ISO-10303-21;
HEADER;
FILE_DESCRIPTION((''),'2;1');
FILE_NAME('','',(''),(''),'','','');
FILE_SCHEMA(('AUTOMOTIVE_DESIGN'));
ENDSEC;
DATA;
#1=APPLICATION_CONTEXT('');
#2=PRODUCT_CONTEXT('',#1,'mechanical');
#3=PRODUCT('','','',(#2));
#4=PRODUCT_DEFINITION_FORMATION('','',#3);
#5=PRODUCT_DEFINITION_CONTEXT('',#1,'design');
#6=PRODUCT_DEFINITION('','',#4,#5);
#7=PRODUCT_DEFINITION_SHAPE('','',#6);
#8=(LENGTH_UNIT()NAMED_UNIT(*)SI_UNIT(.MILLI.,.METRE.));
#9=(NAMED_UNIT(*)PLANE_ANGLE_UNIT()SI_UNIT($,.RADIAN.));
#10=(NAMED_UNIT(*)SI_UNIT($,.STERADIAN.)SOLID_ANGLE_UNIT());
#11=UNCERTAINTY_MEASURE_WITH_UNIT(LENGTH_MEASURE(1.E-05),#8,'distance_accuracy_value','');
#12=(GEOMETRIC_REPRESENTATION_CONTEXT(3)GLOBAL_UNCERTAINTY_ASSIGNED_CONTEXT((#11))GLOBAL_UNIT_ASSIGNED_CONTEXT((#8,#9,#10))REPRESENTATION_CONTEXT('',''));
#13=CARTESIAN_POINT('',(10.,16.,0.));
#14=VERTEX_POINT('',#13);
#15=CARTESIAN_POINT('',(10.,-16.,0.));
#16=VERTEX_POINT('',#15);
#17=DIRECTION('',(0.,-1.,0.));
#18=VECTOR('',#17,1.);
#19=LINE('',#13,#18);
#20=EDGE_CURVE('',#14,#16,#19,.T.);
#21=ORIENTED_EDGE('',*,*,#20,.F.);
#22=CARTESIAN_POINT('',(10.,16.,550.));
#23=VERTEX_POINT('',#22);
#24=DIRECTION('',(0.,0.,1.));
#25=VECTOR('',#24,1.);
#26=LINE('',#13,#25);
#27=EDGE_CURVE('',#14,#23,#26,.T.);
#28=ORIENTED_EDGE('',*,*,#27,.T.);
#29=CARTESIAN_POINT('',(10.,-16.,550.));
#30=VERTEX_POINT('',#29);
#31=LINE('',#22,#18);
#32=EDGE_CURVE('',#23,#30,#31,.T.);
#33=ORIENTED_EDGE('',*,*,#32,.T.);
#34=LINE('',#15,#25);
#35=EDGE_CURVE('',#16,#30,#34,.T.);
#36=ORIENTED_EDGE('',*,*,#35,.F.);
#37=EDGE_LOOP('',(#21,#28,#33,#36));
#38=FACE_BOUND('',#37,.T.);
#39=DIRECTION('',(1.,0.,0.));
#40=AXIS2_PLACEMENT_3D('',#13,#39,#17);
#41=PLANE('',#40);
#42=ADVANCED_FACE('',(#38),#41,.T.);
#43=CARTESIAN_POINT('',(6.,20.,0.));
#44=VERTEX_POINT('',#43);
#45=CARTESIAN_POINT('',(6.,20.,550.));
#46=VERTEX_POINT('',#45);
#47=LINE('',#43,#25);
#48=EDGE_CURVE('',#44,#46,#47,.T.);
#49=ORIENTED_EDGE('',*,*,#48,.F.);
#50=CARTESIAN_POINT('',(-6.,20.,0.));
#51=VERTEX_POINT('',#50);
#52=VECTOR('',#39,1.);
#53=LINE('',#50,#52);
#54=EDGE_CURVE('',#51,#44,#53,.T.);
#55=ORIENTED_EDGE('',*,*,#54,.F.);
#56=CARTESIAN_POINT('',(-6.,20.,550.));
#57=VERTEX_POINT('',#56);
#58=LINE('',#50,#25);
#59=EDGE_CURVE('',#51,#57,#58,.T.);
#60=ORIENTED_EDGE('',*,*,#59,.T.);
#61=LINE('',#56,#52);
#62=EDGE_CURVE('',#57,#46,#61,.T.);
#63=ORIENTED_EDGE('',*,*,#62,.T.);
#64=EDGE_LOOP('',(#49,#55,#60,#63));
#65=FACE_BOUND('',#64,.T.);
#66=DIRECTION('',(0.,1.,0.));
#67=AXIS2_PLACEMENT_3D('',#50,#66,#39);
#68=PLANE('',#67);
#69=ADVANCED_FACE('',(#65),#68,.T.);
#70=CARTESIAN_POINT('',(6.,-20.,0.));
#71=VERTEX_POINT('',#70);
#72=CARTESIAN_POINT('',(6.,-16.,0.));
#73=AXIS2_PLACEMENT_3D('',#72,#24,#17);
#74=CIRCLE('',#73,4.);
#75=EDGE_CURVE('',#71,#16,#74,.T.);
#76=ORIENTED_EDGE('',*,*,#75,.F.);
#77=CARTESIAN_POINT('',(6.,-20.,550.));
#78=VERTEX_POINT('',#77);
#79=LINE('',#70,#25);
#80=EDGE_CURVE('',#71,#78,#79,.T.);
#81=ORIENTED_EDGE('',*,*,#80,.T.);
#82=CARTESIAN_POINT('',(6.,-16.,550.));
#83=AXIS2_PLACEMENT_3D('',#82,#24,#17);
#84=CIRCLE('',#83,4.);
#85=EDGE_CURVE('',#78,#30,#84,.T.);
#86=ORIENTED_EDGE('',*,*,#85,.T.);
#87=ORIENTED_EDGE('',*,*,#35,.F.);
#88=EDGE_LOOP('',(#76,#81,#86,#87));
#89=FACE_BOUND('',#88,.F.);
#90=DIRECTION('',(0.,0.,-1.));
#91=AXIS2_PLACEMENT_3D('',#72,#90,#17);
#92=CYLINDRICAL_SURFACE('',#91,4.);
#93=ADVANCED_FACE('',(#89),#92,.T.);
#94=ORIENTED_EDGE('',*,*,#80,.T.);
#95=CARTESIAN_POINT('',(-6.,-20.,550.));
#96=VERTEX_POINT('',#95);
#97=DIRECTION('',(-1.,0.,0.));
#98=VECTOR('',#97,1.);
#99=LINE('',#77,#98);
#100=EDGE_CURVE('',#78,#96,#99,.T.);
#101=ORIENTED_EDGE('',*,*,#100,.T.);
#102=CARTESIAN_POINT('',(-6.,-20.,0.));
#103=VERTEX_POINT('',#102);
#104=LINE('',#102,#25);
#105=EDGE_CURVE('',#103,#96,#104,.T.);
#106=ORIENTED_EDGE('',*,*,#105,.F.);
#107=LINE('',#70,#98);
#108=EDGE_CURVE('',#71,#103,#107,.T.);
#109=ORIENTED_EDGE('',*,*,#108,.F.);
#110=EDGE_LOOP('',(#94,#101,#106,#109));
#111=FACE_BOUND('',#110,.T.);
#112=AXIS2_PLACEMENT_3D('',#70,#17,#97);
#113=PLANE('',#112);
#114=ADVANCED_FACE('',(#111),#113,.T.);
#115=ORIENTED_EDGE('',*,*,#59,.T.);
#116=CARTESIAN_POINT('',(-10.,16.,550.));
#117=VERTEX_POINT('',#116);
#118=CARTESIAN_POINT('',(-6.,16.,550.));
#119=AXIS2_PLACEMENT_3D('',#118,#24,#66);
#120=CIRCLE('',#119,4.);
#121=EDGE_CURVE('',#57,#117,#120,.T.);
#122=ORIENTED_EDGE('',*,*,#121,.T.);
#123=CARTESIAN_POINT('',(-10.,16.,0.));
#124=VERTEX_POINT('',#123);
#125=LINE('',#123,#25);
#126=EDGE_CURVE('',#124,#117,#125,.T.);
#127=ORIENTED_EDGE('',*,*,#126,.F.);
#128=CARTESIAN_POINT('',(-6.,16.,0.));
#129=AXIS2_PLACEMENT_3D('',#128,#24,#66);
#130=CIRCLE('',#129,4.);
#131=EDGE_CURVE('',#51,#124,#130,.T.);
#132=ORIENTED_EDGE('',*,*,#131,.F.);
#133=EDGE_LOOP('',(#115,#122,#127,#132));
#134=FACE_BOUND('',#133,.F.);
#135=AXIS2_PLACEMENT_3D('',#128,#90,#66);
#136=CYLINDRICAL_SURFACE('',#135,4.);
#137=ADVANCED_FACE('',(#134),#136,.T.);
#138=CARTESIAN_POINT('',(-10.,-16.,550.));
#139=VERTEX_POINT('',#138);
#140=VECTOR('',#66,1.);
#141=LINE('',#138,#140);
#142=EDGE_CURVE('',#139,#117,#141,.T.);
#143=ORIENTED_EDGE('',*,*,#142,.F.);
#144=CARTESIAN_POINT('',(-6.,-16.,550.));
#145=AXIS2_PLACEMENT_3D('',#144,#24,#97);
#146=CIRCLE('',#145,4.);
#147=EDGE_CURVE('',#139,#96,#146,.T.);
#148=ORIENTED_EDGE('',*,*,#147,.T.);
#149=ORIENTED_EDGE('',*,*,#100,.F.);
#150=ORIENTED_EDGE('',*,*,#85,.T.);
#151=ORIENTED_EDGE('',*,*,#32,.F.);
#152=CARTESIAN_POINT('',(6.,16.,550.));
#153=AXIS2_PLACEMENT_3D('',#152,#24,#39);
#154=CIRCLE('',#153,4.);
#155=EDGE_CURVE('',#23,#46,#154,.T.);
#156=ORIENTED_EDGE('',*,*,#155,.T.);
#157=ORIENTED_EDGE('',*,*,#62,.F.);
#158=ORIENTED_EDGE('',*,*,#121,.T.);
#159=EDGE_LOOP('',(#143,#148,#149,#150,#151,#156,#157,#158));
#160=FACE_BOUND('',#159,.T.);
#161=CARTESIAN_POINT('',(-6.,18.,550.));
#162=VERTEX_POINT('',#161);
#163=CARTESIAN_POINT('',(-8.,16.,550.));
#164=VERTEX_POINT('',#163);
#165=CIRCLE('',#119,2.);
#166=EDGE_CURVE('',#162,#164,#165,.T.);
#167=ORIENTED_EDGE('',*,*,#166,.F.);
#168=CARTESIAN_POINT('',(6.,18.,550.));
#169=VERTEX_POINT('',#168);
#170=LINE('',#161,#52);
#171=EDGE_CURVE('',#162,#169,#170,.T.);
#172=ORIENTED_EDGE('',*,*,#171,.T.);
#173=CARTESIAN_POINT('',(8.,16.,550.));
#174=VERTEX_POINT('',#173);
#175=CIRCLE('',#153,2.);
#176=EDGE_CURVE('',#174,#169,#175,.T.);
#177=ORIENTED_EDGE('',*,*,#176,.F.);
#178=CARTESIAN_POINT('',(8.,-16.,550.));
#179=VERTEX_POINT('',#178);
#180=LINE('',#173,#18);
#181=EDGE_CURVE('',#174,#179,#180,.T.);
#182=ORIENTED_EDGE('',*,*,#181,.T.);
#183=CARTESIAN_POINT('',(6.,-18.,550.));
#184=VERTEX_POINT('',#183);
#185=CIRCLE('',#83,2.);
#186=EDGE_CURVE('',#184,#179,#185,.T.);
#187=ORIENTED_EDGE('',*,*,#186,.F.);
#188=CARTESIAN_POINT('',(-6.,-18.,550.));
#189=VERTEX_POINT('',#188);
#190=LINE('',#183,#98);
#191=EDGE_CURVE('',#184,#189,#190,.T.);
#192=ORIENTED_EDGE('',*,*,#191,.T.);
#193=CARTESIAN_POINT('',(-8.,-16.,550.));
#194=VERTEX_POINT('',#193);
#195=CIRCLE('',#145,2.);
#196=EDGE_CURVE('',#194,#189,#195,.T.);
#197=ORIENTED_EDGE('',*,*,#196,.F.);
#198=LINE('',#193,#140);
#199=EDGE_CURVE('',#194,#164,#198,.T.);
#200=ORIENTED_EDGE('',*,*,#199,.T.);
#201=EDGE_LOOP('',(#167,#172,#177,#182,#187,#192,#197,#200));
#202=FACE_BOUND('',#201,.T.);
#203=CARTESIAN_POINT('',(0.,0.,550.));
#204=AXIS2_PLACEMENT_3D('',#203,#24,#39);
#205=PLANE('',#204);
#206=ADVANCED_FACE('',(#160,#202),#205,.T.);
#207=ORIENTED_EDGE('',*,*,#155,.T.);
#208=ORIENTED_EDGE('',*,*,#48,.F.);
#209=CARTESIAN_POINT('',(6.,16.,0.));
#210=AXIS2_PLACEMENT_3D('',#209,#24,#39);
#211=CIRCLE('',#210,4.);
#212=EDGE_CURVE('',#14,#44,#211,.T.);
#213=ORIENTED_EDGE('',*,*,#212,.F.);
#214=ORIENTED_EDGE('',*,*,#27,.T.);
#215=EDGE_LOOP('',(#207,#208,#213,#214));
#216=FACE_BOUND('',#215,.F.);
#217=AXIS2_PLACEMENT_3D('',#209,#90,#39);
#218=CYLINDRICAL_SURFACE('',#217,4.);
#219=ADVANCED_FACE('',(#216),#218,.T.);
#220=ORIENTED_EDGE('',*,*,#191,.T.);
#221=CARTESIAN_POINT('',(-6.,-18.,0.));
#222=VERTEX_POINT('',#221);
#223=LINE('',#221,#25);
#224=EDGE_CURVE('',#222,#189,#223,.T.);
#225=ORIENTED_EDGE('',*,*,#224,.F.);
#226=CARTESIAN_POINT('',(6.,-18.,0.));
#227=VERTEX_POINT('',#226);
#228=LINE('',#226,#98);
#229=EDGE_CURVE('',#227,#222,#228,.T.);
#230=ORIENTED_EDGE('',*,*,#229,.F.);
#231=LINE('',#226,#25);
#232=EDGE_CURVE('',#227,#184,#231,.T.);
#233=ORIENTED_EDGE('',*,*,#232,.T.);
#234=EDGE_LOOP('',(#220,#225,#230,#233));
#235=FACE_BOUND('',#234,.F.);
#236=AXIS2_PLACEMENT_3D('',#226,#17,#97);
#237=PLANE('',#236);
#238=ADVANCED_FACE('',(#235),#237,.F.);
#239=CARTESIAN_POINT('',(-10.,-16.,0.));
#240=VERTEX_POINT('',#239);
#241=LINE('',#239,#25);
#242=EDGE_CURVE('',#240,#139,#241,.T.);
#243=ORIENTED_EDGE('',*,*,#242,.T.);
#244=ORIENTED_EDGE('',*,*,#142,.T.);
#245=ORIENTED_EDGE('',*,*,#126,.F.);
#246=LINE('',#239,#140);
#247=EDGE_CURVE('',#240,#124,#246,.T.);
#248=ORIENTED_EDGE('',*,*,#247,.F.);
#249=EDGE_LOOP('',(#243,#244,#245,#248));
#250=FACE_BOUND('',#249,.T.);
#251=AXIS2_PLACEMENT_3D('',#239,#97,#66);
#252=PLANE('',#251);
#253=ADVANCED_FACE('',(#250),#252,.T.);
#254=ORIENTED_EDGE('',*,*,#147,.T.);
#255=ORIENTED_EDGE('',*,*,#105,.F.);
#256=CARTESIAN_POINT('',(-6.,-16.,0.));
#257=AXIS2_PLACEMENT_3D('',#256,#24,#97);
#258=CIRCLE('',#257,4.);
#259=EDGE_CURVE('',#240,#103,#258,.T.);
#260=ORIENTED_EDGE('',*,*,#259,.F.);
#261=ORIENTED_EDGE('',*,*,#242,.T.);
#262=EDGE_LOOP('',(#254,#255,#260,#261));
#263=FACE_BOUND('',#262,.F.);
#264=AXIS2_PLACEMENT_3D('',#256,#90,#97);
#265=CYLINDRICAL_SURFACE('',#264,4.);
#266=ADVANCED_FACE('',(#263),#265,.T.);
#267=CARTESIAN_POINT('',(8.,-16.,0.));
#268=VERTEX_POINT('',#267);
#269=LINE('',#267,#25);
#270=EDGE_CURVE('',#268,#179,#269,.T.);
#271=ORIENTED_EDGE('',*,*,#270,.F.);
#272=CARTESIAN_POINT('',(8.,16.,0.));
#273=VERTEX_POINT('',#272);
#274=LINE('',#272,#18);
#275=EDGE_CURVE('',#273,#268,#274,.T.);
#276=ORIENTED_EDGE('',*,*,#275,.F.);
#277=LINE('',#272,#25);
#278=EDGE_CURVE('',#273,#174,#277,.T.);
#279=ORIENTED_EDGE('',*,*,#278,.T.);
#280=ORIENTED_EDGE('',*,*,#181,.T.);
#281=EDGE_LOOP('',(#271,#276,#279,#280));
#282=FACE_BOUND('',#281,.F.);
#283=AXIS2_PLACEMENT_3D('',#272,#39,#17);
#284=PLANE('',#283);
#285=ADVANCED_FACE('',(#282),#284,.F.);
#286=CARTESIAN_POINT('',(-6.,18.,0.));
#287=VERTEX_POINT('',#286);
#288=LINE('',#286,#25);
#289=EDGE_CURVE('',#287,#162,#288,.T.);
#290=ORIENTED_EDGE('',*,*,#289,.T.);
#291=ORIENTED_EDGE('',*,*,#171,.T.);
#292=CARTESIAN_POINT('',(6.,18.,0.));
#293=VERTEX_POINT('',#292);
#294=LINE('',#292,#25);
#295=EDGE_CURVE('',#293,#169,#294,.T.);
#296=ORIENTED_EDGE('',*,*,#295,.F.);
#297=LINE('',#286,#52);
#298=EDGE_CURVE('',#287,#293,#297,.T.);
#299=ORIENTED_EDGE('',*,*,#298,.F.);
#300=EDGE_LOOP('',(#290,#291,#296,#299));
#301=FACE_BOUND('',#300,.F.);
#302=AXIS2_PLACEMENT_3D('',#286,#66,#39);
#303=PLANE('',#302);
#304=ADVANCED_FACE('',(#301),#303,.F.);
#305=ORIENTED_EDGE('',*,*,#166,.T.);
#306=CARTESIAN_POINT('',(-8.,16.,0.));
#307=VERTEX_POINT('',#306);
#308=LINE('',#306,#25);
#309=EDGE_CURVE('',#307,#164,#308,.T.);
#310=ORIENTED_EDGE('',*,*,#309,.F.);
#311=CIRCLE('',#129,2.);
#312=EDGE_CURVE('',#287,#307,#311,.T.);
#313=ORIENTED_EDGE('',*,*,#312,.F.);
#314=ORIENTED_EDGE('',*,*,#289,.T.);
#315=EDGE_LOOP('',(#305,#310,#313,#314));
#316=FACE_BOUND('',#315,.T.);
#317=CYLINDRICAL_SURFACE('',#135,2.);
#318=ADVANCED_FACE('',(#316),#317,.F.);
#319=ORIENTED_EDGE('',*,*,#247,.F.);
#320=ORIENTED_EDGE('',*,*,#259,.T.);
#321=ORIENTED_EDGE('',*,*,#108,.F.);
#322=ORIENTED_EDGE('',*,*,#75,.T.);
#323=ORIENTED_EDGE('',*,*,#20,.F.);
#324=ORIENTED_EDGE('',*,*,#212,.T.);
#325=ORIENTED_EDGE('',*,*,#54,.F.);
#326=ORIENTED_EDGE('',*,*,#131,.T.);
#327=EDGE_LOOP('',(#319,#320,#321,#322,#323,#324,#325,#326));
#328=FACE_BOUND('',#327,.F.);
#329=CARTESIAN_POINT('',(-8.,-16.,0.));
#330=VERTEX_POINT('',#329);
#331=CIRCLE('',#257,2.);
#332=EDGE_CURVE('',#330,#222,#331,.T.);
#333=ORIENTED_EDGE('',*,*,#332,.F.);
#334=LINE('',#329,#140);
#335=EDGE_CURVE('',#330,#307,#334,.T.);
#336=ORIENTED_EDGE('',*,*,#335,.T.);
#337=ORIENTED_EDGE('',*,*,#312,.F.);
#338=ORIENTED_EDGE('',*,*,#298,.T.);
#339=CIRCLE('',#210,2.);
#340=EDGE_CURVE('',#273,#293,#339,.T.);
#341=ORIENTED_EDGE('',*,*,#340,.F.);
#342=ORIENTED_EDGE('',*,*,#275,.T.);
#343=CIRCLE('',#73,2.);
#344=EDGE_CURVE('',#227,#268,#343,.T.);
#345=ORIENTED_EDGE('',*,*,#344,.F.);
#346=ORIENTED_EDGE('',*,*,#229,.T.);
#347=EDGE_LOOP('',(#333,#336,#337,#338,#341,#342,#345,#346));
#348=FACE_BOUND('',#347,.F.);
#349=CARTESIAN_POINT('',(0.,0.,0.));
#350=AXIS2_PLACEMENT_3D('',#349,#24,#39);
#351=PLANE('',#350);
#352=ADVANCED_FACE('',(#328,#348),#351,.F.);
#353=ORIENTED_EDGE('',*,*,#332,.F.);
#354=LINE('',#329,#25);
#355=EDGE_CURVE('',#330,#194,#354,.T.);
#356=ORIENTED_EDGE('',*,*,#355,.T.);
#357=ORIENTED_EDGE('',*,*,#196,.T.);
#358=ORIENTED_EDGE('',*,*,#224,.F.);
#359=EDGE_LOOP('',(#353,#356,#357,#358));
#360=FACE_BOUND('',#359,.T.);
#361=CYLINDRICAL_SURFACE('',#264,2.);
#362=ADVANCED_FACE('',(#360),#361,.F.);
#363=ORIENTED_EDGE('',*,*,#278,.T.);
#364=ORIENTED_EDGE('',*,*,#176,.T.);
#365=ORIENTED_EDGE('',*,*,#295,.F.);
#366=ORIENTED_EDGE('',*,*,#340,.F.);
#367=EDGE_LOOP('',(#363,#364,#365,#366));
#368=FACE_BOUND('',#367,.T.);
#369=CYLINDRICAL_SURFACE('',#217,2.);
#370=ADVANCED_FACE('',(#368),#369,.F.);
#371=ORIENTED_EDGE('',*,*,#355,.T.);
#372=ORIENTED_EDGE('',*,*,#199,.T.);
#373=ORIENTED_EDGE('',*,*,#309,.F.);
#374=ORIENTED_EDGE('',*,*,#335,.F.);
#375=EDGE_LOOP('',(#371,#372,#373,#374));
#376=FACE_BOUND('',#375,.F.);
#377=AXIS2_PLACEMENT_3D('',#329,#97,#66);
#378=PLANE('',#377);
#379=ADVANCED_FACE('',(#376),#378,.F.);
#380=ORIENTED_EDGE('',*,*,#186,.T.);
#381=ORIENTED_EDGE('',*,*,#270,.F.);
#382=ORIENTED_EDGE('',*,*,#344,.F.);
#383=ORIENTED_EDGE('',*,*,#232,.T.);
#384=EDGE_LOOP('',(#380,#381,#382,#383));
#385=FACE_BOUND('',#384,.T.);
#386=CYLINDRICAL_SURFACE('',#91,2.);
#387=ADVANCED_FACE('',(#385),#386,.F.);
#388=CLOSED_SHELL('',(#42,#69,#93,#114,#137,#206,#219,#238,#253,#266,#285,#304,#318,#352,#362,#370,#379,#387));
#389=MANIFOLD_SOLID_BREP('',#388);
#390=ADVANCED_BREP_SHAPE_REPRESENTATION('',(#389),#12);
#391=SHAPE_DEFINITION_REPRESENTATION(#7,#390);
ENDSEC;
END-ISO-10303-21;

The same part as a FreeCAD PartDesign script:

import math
import FreeCAD as App
import Part
import Sketcher
Q = App.Units.Quantity

doc = App.newDocument("Part")
body = doc.addObject("PartDesign::Body", "Body")

sketch1 = doc.addObject("Sketcher::SketchObject", "Sketch")
body.addObject(sketch1)
sketch1.AttachmentSupport = (doc.XY_Plane, [""])
sketch1.MapMode = "FlatFace"
sketch1.addGeometry(Part.LineSegment(App.Vector(-10, 16, 0), App.Vector(-10, -16, 0)), False)
sketch1.addGeometry(Part.ArcOfCircle(Part.Circle(App.Vector(-6, -16, 0), App.Vector(0, 0, 1), 4), math.radians(180), math.radians(270)), False)
sketch1.addGeometry(Part.LineSegment(App.Vector(-6, -20, 0), App.Vector(6, -20, 0)), False)
sketch1.addGeometry(Part.ArcOfCircle(Part.Circle(App.Vector(6, -16, 0), App.Vector(0, 0, 1), 4), math.radians(-90), math.radians(0)), False)
sketch1.addGeometry(Part.LineSegment(App.Vector(10, -16, 0), App.Vector(10, 16, 0)), False)
sketch1.addGeometry(Part.ArcOfCircle(Part.Circle(App.Vector(6, 16, 0), App.Vector(0, 0, 1), 4), math.radians(0), math.radians(90)), False)
sketch1.addGeometry(Part.LineSegment(App.Vector(6, 20, 0), App.Vector(-6, 20, 0)), False)
sketch1.addGeometry(Part.ArcOfCircle(Part.Circle(App.Vector(-6, 16, 0), App.Vector(0, 0, 1), 4), math.radians(90), math.radians(180)), False)
sketch1.addGeometry(Part.ArcOfCircle(Part.Circle(App.Vector(-6, 16, 0), App.Vector(0, 0, 1), 2), math.radians(90), math.radians(180)), False)
sketch1.addGeometry(Part.LineSegment(App.Vector(-6, 18, 0), App.Vector(6, 18, 0)), False)
sketch1.addGeometry(Part.ArcOfCircle(Part.Circle(App.Vector(6, 16, 0), App.Vector(0, 0, 1), 2), math.radians(0), math.radians(90)), False)
sketch1.addGeometry(Part.LineSegment(App.Vector(8, 16, 0), App.Vector(8, -16, 0)), False)
sketch1.addGeometry(Part.ArcOfCircle(Part.Circle(App.Vector(6, -16, 0), App.Vector(0, 0, 1), 2), math.radians(-90), math.radians(0)), False)
sketch1.addGeometry(Part.LineSegment(App.Vector(6, -18, 0), App.Vector(-6, -18, 0)), False)
sketch1.addGeometry(Part.ArcOfCircle(Part.Circle(App.Vector(-6, -16, 0), App.Vector(0, 0, 1), 2), math.radians(180), math.radians(270)), False)
sketch1.addGeometry(Part.LineSegment(App.Vector(-8, -16, 0), App.Vector(-8, 16, 0)), False)
sketch1.addConstraint(Sketcher.Constraint("Tangent", 0, 2, 1, 1))
sketch1.addConstraint(Sketcher.Constraint("Tangent", 1, 2, 2, 1))
sketch1.addConstraint(Sketcher.Constraint("Tangent", 2, 2, 3, 1))
sketch1.addConstraint(Sketcher.Constraint("Tangent", 3, 2, 4, 1))
sketch1.addConstraint(Sketcher.Constraint("Tangent", 4, 2, 5, 1))
sketch1.addConstraint(Sketcher.Constraint("Tangent", 5, 2, 6, 1))
sketch1.addConstraint(Sketcher.Constraint("Tangent", 6, 2, 7, 1))
sketch1.addConstraint(Sketcher.Constraint("Tangent", 7, 2, 0, 1))
sketch1.addConstraint(Sketcher.Constraint("Tangent", 8, 1, 9, 1))
sketch1.addConstraint(Sketcher.Constraint("Tangent", 9, 2, 10, 2))
sketch1.addConstraint(Sketcher.Constraint("Tangent", 10, 1, 11, 1))
sketch1.addConstraint(Sketcher.Constraint("Tangent", 11, 2, 12, 2))
sketch1.addConstraint(Sketcher.Constraint("Tangent", 12, 1, 13, 1))
sketch1.addConstraint(Sketcher.Constraint("Tangent", 13, 2, 14, 2))
sketch1.addConstraint(Sketcher.Constraint("Tangent", 14, 1, 15, 1))
sketch1.addConstraint(Sketcher.Constraint("Tangent", 15, 2, 8, 2))
sketch1.addConstraint(Sketcher.Constraint("Vertical", 0))
sketch1.addConstraint(Sketcher.Constraint("Horizontal", 2))
sketch1.addConstraint(Sketcher.Constraint("Vertical", 4))
sketch1.addConstraint(Sketcher.Constraint("Horizontal", 6))
sketch1.addConstraint(Sketcher.Constraint("Horizontal", 9))
sketch1.addConstraint(Sketcher.Constraint("Vertical", 11))
sketch1.addConstraint(Sketcher.Constraint("Horizontal", 13))
sketch1.addConstraint(Sketcher.Constraint("Vertical", 15))
sketch1.addConstraint(Sketcher.Constraint("Coincident", 8, 3, 7, 3))
sketch1.addConstraint(Sketcher.Constraint("Coincident", 10, 3, 5, 3))
sketch1.addConstraint(Sketcher.Constraint("Coincident", 12, 3, 3, 3))
sketch1.addConstraint(Sketcher.Constraint("Equal", 1, 3))
sketch1.addConstraint(Sketcher.Constraint("Equal", 3, 5))
sketch1.addConstraint(Sketcher.Constraint("Equal", 5, 7))
sketch1.addConstraint(Sketcher.Constraint("Equal", 12, 14))
sketch1.addConstraint(Sketcher.Constraint("Symmetric", 1, 3, 5, 3, -1, 1))
sketch1.addConstraint(Sketcher.Constraint("Radius", 1, Q("4 mm")))
sketch1.addConstraint(Sketcher.Constraint("Radius", 8, Q("2 mm")))
sketch1.addConstraint(Sketcher.Constraint("DistanceX", 0, 2, -1, 1, Q("10 mm")))
sketch1.addConstraint(Sketcher.Constraint("DistanceY", 1, 2, -1, 1, Q("20 mm")))
pad1 = doc.addObject("PartDesign::Pad", "Pad")
body.addObject(pad1)
pad1.Profile = sketch1
pad1.Length = 550

doc.recompute()
